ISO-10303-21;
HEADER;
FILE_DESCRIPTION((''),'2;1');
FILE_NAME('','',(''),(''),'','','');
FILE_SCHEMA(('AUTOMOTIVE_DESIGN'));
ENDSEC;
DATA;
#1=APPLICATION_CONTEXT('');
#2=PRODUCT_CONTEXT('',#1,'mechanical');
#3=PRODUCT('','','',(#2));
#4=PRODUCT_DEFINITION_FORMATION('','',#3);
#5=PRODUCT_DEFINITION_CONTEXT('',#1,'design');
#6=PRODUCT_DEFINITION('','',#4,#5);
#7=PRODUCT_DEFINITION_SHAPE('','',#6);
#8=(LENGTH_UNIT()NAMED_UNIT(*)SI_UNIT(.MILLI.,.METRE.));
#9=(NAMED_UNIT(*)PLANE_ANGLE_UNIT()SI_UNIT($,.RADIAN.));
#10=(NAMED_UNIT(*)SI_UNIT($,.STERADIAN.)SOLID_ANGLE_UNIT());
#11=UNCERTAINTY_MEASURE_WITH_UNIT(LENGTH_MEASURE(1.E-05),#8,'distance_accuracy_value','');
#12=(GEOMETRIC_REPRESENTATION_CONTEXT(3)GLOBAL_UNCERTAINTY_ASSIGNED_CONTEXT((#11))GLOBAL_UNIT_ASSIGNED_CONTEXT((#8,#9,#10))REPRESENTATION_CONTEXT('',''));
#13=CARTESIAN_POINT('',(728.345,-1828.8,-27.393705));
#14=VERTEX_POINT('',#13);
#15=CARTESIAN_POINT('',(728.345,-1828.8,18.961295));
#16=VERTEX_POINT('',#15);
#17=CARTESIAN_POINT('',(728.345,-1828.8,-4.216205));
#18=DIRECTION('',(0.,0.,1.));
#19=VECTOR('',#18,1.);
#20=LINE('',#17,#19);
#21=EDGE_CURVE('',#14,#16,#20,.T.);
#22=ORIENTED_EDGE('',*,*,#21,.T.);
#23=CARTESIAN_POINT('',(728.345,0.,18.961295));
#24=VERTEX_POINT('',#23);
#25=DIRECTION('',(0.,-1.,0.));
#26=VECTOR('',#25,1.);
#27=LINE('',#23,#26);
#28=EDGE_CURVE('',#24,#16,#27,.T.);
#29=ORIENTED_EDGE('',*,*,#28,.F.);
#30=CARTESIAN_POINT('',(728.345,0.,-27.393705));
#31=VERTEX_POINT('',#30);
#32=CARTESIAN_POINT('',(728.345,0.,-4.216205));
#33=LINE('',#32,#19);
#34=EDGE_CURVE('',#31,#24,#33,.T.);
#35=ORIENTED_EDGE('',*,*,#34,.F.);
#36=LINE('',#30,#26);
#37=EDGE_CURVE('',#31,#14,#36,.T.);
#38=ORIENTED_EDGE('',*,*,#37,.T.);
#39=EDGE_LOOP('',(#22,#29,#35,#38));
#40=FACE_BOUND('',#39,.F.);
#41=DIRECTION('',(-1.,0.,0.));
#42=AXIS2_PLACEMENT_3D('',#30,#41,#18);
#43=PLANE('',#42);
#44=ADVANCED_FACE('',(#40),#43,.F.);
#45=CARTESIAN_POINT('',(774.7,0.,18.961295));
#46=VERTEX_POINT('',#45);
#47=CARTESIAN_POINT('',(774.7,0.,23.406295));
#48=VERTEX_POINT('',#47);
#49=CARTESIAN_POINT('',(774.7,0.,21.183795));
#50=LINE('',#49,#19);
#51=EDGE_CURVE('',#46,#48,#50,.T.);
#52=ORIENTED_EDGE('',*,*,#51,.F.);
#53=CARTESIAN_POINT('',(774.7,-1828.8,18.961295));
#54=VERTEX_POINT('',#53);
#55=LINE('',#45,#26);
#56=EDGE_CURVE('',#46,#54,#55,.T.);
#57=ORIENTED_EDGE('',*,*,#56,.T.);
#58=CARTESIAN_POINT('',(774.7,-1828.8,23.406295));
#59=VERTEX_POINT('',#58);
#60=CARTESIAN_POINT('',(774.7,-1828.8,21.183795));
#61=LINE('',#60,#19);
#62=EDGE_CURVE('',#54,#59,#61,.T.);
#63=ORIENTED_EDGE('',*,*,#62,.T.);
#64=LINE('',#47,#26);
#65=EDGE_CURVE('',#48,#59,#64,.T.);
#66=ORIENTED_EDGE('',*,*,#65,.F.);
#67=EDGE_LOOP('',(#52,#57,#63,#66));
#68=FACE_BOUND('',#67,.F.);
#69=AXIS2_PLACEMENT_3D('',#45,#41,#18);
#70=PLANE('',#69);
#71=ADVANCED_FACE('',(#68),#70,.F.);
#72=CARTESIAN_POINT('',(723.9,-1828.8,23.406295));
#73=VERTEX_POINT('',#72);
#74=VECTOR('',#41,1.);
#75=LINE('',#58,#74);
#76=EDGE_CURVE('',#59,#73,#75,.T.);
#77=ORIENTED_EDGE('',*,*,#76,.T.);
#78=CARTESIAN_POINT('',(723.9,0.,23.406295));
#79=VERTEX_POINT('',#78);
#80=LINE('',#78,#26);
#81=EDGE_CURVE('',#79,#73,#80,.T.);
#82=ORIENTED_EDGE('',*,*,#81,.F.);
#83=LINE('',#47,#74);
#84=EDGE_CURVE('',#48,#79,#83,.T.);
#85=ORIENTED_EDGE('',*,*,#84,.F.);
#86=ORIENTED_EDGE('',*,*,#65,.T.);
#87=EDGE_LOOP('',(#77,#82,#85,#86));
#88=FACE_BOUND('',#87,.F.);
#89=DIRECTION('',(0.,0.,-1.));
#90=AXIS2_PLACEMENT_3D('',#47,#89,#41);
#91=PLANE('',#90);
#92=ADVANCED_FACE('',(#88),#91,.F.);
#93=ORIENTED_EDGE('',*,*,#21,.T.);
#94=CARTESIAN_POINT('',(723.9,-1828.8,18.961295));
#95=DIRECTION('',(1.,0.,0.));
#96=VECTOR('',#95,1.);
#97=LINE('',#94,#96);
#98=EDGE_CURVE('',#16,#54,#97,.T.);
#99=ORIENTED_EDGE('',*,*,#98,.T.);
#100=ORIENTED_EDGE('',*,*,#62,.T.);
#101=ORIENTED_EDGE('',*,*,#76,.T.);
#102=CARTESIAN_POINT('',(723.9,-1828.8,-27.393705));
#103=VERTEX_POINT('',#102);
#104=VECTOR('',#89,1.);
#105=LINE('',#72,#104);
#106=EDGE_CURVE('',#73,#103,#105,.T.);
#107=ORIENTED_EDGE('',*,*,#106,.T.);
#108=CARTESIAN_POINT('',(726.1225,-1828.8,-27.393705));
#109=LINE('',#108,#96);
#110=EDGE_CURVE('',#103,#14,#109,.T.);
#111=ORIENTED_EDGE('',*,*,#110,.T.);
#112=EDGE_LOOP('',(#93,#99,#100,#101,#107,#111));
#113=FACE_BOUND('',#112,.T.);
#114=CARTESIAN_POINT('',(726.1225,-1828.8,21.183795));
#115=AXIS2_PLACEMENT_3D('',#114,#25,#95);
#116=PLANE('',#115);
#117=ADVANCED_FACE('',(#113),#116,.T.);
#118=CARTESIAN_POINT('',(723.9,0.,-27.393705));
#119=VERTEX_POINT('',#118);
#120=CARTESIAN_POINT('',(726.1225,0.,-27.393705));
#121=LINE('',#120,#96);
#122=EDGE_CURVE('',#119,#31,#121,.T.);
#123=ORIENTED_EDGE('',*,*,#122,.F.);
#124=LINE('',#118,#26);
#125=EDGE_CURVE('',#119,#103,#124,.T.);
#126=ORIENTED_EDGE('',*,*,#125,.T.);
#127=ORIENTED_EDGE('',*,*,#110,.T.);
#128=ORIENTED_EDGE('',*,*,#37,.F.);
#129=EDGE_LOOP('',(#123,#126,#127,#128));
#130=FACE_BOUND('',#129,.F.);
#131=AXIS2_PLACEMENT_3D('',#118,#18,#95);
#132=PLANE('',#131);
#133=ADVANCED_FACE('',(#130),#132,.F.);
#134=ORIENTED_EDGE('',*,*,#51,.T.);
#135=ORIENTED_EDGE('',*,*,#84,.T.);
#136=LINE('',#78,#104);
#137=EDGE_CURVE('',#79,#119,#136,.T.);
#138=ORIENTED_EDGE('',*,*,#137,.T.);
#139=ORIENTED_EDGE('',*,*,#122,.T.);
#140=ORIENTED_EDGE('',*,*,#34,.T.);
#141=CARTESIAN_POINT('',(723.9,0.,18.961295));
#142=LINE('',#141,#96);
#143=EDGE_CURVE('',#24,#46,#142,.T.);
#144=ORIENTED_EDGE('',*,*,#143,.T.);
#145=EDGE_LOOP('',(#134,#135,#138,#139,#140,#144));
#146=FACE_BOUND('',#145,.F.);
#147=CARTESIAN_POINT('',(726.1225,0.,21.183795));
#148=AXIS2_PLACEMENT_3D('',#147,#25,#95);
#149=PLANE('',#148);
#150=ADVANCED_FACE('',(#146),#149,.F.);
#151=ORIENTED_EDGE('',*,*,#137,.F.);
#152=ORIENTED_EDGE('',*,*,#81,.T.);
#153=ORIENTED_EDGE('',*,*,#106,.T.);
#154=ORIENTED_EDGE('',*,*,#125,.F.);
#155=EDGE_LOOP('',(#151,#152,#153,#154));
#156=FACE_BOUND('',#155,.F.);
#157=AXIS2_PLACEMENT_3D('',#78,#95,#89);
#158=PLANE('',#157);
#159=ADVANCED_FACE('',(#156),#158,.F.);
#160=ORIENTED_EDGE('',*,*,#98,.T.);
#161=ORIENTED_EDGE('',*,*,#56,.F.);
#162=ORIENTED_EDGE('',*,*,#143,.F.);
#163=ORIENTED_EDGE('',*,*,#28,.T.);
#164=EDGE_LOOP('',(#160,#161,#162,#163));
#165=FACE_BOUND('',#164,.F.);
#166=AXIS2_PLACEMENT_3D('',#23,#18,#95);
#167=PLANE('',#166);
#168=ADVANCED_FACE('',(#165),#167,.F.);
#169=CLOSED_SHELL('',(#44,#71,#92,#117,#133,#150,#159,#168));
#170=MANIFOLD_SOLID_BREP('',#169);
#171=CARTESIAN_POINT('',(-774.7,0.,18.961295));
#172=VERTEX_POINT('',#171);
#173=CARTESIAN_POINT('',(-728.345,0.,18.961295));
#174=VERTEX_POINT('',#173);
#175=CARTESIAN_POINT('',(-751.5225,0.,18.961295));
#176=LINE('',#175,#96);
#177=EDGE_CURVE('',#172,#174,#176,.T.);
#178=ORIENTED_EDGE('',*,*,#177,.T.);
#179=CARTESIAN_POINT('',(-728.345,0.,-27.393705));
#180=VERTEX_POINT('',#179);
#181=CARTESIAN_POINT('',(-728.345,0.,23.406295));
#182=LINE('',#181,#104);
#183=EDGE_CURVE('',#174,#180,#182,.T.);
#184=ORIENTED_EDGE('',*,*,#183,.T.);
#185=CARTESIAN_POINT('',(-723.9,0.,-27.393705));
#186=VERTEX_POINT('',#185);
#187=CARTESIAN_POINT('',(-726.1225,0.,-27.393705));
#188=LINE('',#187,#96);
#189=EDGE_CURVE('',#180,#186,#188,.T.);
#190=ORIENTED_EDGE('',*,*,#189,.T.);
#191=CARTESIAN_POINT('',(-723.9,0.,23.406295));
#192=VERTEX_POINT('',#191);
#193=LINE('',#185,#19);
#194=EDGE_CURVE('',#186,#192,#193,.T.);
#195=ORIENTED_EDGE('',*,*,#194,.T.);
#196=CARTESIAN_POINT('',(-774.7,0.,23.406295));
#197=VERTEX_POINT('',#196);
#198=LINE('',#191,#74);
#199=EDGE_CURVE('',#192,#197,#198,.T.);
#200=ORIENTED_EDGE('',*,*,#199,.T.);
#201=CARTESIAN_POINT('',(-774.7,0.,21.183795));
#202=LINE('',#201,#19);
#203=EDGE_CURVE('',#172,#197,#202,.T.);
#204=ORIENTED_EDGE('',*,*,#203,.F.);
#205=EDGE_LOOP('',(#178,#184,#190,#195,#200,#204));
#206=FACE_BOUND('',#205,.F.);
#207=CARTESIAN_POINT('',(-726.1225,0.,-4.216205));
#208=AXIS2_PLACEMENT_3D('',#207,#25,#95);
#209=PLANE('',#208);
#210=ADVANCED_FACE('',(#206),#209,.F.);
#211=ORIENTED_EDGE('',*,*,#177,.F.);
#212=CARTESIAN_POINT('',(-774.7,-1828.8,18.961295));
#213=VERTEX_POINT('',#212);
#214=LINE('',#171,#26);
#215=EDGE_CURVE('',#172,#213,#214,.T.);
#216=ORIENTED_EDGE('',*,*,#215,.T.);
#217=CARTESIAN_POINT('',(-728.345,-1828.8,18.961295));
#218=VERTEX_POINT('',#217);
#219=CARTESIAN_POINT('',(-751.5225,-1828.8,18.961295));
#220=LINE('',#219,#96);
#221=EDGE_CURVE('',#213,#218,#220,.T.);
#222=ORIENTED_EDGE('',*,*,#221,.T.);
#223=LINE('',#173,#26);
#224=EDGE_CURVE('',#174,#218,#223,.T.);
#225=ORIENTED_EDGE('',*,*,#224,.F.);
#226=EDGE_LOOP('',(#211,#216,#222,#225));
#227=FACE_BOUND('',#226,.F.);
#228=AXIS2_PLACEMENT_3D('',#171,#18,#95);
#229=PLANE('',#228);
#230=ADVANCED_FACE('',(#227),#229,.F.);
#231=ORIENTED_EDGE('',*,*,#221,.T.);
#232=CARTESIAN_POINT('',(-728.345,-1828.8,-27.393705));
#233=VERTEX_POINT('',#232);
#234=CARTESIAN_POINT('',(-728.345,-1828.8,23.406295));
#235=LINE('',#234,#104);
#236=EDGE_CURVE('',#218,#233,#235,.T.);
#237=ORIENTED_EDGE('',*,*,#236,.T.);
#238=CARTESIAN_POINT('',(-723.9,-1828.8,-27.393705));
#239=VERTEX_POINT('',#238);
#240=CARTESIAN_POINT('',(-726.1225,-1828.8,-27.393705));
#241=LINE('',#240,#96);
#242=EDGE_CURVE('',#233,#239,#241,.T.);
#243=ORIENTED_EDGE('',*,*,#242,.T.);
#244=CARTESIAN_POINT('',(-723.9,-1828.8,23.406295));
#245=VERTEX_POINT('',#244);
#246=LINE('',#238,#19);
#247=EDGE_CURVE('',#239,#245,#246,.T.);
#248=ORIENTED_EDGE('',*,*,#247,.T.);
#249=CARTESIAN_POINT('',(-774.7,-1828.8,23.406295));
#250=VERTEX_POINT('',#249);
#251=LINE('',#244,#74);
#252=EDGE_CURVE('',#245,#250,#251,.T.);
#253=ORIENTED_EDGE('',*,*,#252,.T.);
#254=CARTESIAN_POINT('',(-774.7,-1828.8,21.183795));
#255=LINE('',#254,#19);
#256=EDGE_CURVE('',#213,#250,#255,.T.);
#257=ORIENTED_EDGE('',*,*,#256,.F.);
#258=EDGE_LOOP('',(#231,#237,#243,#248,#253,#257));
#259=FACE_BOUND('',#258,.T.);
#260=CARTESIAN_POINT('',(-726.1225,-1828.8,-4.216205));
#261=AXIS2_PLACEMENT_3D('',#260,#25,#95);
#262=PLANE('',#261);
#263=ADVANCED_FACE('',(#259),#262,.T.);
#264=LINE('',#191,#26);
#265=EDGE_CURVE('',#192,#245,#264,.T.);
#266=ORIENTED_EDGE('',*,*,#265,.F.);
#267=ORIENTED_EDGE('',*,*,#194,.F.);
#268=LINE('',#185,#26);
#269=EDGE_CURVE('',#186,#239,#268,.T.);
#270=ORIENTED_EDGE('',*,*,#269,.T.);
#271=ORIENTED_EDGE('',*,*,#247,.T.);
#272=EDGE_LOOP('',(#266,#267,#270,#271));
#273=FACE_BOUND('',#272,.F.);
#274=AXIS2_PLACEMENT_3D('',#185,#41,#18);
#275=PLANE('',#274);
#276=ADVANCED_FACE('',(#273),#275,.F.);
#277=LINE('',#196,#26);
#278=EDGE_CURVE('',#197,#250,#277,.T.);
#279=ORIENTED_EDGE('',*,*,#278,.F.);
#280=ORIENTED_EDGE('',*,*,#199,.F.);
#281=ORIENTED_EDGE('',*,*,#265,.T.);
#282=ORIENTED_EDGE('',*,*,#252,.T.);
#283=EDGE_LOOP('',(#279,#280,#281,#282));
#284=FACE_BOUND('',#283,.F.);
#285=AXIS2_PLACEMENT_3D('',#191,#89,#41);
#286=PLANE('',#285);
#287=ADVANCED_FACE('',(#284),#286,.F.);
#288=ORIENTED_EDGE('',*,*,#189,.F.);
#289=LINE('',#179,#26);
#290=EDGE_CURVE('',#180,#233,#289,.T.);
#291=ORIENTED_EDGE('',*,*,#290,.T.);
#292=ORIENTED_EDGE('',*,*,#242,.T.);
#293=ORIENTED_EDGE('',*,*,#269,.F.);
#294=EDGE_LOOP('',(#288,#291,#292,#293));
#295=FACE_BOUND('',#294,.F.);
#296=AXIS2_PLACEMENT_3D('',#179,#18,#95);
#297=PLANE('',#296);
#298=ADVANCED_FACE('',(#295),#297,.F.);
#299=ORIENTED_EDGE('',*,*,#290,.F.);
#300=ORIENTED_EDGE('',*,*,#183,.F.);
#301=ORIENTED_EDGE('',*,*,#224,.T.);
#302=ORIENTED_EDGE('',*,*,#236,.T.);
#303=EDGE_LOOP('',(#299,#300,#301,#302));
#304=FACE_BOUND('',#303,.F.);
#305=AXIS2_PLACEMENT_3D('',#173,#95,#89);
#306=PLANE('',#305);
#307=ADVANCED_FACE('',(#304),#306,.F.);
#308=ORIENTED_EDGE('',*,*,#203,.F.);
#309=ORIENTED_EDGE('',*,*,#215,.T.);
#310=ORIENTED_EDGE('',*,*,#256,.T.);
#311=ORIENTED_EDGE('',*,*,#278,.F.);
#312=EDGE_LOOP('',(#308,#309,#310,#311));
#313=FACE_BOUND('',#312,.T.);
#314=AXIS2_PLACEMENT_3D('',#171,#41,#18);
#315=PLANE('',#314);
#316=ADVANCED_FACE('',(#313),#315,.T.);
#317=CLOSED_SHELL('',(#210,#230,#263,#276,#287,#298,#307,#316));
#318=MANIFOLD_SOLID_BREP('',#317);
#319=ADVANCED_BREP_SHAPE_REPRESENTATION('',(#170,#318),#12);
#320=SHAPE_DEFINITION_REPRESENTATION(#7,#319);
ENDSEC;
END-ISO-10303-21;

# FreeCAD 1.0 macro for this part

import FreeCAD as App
import Part
import Sketcher

V = App.Vector
Q = App.Units.Quantity

doc = App.newDocument("Part")
body = doc.addObject("PartDesign::Body", "Body")
body.AllowCompound = True

# Sketch on XZ plane
sketch1 = doc.addObject("Sketcher::SketchObject", "Sketch")
body.addObject(sketch1)
sketch1.AttachmentSupport = (doc.XZ_Plane, [""])
sketch1.MapMode = "FlatFace"
sketch1.addGeometry(Part.LineSegment(V(-728.3, -27.4, 0), V(-723.9, -27.4, 0)), False)
sketch1.addGeometry(Part.LineSegment(V(-723.9, -27.4, 0), V(-723.9, 23.4, 0)), False)
sketch1.addGeometry(Part.LineSegment(V(-723.9, 23.4, 0), V(-774.7, 23.4, 0)), False)
sketch1.addGeometry(Part.LineSegment(V(-774.7, 23.4, 0), V(-774.7, 19, 0)), False)
sketch1.addGeometry(Part.LineSegment(V(-774.7, 19, 0), V(-728.3, 19, 0)), False)
sketch1.addGeometry(Part.LineSegment(V(-728.3, 19, 0), V(-728.3, -27.4, 0)), False)
sketch1.addGeometry(Part.LineSegment(V(723.9, 23.4, 0), V(723.9, -27.4, 0)), False)
sketch1.addGeometry(Part.LineSegment(V(723.9, -27.4, 0), V(728.3, -27.4, 0)), False)
sketch1.addGeometry(Part.LineSegment(V(728.3, -27.4, 0), V(728.3, 19, 0)), False)
sketch1.addGeometry(Part.LineSegment(V(728.3, 19, 0), V(774.7, 19, 0)), False)
sketch1.addGeometry(Part.LineSegment(V(774.7, 19, 0), V(774.7, 23.4, 0)), False)
sketch1.addGeometry(Part.LineSegment(V(774.7, 23.4, 0), V(723.9, 23.4, 0)), False)
sketch1.addConstraint(Sketcher.Constraint("Coincident", 0, 2, 1, 1))
sketch1.addConstraint(Sketcher.Constraint("Coincident", 1, 2, 2, 1))
sketch1.addConstraint(Sketcher.Constraint("Coincident", 2, 2, 3, 1))
sketch1.addConstraint(Sketcher.Constraint("Coincident", 3, 2, 4, 1))
sketch1.addConstraint(Sketcher.Constraint("Coincident", 4, 2, 5, 1))
sketch1.addConstraint(Sketcher.Constraint("Coincident", 5, 2, 0, 1))
sketch1.addConstraint(Sketcher.Constraint("Coincident", 6, 2, 7, 1))
sketch1.addConstraint(Sketcher.Constraint("Coincident", 7, 2, 8, 1))
sketch1.addConstraint(Sketcher.Constraint("Coincident", 8, 2, 9, 1))
sketch1.addConstraint(Sketcher.Constraint("Coincident", 9, 2, 10, 1))
sketch1.addConstraint(Sketcher.Constraint("Coincident", 10, 2, 11, 1))
sketch1.addConstraint(Sketcher.Constraint("Coincident", 11, 2, 6, 1))
sketch1.addConstraint(Sketcher.Constraint("Horizontal", 0))
sketch1.addConstraint(Sketcher.Constraint("Vertical", 1))
sketch1.addConstraint(Sketcher.Constraint("Horizontal", 2))
sketch1.addConstraint(Sketcher.Constraint("Vertical", 3))
sketch1.addConstraint(Sketcher.Constraint("Horizontal", 4))
sketch1.addConstraint(Sketcher.Constraint("Vertical", 5))
sketch1.addConstraint(Sketcher.Constraint("Vertical", 6))
sketch1.addConstraint(Sketcher.Constraint("Horizontal", 7))
sketch1.addConstraint(Sketcher.Constraint("Vertical", 8))
sketch1.addConstraint(Sketcher.Constraint("Horizontal", 9))
sketch1.addConstraint(Sketcher.Constraint("Vertical", 10))
sketch1.addConstraint(Sketcher.Constraint("Horizontal", 11))
sketch1.addConstraint(Sketcher.Constraint("Symmetric", 0, 2, 6, 2, -2))
sketch1.addConstraint(Sketcher.Constraint("Symmetric", 4, 2, 8, 2, -2))
sketch1.addConstraint(Sketcher.Constraint("Symmetric", 2, 2, 10, 2, -2))
sketch1.addConstraint(Sketcher.Constraint("Equal", 11, 1))
sketch1.addConstraint(Sketcher.Constraint("Equal", 7, 3))
sketch1.addConstraint(Sketcher.Constraint("DistanceX", 2, 2, 2, 1, Q("2 in")))
sketch1.addConstraint(Sketcher.Constraint("DistanceX", 0, 2, 6, 2, Q("57 in")))
sketch1.addConstraint(Sketcher.Constraint("DistanceX", 0, 1, 0, 2, Q("0.175 in")))
sketch1.addConstraint(Sketcher.Constraint("DistanceY", 0, 2, -1, 1, 27.393705))
pad1 = doc.addObject("PartDesign::Pad", "Pad")
body.addObject(pad1)
pad1.Profile = sketch1
pad1.Length = Q("72 in")

doc.recompute()
